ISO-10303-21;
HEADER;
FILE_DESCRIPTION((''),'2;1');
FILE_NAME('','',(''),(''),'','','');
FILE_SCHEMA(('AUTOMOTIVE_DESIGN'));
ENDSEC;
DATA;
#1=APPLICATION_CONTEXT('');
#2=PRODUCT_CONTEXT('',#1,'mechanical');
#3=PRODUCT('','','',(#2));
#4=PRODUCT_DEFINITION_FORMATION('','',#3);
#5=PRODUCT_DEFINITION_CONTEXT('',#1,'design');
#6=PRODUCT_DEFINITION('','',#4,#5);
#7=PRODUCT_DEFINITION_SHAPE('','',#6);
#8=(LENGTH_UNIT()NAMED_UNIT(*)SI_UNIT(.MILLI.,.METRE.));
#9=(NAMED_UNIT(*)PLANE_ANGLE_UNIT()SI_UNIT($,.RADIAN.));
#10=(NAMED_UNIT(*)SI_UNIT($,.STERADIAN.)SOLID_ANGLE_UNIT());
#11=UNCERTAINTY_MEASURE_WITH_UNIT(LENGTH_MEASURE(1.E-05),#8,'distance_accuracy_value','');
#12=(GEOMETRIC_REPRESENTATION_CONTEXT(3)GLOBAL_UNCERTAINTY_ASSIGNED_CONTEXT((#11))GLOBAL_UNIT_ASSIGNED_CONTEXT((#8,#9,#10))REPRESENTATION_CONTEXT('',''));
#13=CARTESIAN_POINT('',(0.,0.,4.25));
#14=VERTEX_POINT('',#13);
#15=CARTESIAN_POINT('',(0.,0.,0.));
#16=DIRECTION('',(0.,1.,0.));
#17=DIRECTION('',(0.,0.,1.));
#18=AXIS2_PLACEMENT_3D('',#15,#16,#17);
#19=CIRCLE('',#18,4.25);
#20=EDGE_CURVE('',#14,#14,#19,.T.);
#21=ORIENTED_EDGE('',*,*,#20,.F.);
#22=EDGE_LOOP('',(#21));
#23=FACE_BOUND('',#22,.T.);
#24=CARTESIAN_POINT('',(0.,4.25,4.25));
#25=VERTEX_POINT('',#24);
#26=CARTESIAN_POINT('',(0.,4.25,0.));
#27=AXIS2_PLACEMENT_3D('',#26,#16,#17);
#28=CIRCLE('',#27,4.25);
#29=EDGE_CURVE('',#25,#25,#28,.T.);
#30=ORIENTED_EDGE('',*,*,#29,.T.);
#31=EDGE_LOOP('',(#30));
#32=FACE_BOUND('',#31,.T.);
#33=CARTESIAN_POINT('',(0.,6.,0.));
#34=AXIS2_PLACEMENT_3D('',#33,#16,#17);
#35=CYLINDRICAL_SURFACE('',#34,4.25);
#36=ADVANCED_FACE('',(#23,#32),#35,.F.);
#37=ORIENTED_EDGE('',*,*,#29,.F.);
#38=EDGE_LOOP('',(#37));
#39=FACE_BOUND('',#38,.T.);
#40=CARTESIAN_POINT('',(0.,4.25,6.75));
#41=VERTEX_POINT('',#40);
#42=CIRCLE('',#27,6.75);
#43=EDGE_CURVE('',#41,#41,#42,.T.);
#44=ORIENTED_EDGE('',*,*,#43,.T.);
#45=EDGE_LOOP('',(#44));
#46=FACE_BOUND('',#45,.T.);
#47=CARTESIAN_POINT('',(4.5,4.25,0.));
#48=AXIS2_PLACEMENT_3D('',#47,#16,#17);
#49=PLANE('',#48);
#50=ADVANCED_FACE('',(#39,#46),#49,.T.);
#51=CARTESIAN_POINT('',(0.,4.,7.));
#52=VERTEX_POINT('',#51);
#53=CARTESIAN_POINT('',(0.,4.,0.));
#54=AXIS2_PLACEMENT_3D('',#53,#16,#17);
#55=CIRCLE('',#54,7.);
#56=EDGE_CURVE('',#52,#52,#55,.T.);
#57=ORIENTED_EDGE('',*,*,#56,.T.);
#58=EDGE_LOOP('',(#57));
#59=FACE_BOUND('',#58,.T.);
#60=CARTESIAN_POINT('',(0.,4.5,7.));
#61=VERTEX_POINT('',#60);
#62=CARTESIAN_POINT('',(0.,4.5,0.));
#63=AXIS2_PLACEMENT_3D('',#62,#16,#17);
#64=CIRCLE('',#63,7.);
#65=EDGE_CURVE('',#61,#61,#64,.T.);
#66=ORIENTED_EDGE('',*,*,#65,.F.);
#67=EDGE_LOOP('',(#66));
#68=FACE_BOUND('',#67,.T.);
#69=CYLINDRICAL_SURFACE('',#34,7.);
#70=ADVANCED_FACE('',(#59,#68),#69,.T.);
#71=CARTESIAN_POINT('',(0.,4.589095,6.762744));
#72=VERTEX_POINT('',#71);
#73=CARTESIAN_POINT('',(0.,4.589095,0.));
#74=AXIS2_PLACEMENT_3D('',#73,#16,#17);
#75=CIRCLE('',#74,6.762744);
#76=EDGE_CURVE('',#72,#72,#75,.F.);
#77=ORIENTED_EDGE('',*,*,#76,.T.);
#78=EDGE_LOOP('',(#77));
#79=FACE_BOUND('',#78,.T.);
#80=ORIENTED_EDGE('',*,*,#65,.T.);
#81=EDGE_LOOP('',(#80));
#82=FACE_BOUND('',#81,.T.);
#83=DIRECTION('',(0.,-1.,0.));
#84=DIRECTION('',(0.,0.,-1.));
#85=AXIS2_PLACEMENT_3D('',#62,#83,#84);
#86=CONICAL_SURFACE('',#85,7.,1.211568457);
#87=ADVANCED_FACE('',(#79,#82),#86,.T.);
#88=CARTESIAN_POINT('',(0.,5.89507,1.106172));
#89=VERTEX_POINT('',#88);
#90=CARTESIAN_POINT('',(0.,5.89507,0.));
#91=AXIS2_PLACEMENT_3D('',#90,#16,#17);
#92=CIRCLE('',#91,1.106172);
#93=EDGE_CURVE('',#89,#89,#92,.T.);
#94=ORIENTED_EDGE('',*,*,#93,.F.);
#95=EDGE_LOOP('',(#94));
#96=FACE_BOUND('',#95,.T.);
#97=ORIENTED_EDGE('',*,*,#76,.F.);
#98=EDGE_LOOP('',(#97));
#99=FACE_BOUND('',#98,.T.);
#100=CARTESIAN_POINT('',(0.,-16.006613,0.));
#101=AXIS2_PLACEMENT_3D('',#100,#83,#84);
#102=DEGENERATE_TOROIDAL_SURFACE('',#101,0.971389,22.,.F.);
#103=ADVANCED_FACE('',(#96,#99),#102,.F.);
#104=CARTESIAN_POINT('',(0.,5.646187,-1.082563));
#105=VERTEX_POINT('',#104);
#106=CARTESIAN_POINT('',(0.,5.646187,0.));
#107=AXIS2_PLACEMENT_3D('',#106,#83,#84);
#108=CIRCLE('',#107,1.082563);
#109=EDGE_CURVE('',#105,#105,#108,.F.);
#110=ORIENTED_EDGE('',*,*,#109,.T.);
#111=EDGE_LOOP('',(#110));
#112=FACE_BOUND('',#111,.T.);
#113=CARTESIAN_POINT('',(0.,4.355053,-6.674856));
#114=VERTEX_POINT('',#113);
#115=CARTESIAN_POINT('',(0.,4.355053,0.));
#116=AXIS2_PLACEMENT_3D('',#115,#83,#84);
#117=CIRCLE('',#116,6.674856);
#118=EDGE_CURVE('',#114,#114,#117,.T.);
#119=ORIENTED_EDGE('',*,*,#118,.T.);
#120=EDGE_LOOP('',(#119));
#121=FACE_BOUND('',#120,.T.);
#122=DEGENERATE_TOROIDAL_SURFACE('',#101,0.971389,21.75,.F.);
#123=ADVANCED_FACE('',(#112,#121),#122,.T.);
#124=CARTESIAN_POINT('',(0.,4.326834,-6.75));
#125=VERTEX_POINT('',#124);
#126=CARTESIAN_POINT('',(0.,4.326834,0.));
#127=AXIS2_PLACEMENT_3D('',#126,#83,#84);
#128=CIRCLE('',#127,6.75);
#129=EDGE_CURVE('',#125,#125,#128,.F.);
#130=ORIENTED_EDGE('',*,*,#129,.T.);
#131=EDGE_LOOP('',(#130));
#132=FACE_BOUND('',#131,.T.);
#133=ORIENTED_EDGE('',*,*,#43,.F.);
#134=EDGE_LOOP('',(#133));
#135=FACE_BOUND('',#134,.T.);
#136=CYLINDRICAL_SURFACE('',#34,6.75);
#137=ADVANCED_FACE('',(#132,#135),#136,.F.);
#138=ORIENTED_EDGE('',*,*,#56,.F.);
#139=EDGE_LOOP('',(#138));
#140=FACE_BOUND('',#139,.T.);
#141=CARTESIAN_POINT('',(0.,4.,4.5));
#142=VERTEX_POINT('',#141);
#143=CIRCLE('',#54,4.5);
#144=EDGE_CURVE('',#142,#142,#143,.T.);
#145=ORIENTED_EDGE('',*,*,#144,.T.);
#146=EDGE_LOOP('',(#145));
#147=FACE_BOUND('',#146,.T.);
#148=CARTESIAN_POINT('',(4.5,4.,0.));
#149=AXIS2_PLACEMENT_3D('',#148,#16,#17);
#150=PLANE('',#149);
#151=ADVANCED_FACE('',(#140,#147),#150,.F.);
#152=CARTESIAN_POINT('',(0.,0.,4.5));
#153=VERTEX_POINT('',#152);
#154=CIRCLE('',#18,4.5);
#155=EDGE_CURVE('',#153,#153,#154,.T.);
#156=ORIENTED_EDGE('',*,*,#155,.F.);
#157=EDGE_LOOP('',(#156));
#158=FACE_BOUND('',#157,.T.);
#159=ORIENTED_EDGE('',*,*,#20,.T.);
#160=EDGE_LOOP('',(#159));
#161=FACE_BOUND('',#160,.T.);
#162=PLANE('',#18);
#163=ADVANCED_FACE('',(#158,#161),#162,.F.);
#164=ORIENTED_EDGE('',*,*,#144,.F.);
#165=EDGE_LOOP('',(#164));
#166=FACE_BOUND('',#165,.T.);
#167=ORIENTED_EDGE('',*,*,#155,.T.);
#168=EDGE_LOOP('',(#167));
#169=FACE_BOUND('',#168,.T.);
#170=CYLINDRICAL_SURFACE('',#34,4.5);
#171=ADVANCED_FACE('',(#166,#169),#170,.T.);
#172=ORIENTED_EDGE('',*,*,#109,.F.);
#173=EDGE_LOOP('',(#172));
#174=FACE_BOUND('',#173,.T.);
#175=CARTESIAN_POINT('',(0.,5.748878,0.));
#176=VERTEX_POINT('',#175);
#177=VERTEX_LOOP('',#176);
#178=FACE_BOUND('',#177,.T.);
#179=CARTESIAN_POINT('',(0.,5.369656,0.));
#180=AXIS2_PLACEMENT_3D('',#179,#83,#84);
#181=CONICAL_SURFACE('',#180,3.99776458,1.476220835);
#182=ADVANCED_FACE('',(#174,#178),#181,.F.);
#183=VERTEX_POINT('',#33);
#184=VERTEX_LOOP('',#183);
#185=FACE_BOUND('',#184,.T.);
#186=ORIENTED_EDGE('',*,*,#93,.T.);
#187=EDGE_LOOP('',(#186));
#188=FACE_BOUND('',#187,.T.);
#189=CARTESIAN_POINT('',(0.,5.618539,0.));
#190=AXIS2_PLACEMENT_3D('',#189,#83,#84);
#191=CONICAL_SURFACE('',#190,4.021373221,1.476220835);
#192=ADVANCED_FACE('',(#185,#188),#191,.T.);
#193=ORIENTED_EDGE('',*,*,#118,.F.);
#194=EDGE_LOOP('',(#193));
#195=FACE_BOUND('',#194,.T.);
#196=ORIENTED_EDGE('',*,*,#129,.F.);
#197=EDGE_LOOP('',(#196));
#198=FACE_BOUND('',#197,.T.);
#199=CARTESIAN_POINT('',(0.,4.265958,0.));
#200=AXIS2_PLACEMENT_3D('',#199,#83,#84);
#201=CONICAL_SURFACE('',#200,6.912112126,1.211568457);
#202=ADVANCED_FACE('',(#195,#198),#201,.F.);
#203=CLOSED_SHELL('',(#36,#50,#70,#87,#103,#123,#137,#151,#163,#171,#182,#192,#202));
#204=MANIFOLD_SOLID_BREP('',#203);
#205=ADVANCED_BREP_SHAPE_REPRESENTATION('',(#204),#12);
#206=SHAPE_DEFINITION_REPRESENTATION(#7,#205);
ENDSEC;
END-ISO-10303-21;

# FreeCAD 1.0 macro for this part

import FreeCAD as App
import Part
import Sketcher
from FreeCAD import Vector


def edges_at(feature, points):
    """Names of the edges that pass closest to the given points."""
    edges = feature.Shape.Edges
    near = lambda p: min(range(len(edges)), key=lambda i: edges[i].distToShape(Part.Vertex(*p))[0])
    return sorted({f"Edge{near(p) + 1}" for p in points})


def faces_at(feature, points):
    """Names of the faces that lie closest to the given points."""
    faces = feature.Shape.Faces
    near = lambda p: min(range(len(faces)), key=lambda i: faces[i].distToShape(Part.Vertex(*p))[0])
    return sorted({f"Face{near(p) + 1}" for p in points})

doc = App.newDocument("Part")
body = doc.addObject("PartDesign::Body", "Body")

# Sketch on XY plane
sketch1 = doc.addObject("Sketcher::SketchObject", "Sketch")
body.addObject(sketch1)
sketch1.AttachmentSupport = (doc.XY_Plane, [""])
sketch1.MapMode = "FlatFace"
sketch1.addGeometry([
    Part.LineSegment(Vector(0, 0, 0), Vector(4.5, 0, 0)),  # 0
    Part.LineSegment(Vector(4.5, 0, 0), Vector(4.5, 4, 0)),  # 1
    Part.LineSegment(Vector(4.5, 4, 0), Vector(7, 4, 0)),  # 2
    Part.LineSegment(Vector(7, 4, 0), Vector(7, 4.5, 0)),  # 3
    Part.LineSegment(Vector(7, 4.5, 0), Vector(4, 5.6, 0)),  # 4
    Part.LineSegment(Vector(4, 5.6, 0), Vector(0, 6, 0)),  # 5
    Part.LineSegment(Vector(0, 6, 0), Vector(0, 0, 0)),  # 6
], False)
sketch1.addConstraint([
    Sketcher.Constraint("Coincident", 0, 2, 1, 1),
    Sketcher.Constraint("Coincident", 1, 2, 2, 1),
    Sketcher.Constraint("Coincident", 2, 2, 3, 1),
    Sketcher.Constraint("Coincident", 3, 2, 4, 1),
    Sketcher.Constraint("Coincident", 4, 2, 5, 1),
    Sketcher.Constraint("Coincident", 5, 2, 6, 1),
    Sketcher.Constraint("Coincident", 6, 2, 0, 1),
    Sketcher.Constraint("Horizontal", 0),
    Sketcher.Constraint("Vertical", 1),
    Sketcher.Constraint("Horizontal", 2),
    Sketcher.Constraint("Vertical", 3),
    Sketcher.Constraint("Vertical", 6),
    Sketcher.Constraint("Coincident", 6, 2, -1, 1),
    Sketcher.Constraint("DistanceY", 1, 1, 1, 2, 4.0),
    Sketcher.Constraint("DistanceY", 6, 2, 6, 1, 6.0),
    Sketcher.Constraint("DistanceX", 0, 1, 0, 2, 4.5),
    Sketcher.Constraint("DistanceX", 2, 1, 2, 2, 2.5),
    Sketcher.Constraint("DistanceY", 3, 1, 3, 2, 0.5),
    Sketcher.Constraint("Distance", 4, 3.181721),
    Sketcher.Constraint("DistanceY", -1, 1, 4, 2, 5.618539),
])
revolution = doc.addObject("PartDesign::Revolution", "Revolution")
body.addObject(revolution)
revolution.Profile = sketch1
revolution.ReferenceAxis = (sketch1, ["V_Axis"])
revolution.Angle = 360
doc.recompute()

fillet = doc.addObject("PartDesign::Fillet", "Fillet")
body.addObject(fillet)
fillet.Base = (revolution, edges_at(revolution, [(0, 5.619, -4.021)]))
fillet.Radius = 22
doc.recompute()

thickness = doc.addObject("PartDesign::Thickness", "Thickness")
body.addObject(thickness)
thickness.Base = (fillet, faces_at(fillet, [(0, 0, 0)]))
thickness.Value = 0.25
thickness.Reversed = True
thickness.Join = "Intersection"

doc.recompute()
